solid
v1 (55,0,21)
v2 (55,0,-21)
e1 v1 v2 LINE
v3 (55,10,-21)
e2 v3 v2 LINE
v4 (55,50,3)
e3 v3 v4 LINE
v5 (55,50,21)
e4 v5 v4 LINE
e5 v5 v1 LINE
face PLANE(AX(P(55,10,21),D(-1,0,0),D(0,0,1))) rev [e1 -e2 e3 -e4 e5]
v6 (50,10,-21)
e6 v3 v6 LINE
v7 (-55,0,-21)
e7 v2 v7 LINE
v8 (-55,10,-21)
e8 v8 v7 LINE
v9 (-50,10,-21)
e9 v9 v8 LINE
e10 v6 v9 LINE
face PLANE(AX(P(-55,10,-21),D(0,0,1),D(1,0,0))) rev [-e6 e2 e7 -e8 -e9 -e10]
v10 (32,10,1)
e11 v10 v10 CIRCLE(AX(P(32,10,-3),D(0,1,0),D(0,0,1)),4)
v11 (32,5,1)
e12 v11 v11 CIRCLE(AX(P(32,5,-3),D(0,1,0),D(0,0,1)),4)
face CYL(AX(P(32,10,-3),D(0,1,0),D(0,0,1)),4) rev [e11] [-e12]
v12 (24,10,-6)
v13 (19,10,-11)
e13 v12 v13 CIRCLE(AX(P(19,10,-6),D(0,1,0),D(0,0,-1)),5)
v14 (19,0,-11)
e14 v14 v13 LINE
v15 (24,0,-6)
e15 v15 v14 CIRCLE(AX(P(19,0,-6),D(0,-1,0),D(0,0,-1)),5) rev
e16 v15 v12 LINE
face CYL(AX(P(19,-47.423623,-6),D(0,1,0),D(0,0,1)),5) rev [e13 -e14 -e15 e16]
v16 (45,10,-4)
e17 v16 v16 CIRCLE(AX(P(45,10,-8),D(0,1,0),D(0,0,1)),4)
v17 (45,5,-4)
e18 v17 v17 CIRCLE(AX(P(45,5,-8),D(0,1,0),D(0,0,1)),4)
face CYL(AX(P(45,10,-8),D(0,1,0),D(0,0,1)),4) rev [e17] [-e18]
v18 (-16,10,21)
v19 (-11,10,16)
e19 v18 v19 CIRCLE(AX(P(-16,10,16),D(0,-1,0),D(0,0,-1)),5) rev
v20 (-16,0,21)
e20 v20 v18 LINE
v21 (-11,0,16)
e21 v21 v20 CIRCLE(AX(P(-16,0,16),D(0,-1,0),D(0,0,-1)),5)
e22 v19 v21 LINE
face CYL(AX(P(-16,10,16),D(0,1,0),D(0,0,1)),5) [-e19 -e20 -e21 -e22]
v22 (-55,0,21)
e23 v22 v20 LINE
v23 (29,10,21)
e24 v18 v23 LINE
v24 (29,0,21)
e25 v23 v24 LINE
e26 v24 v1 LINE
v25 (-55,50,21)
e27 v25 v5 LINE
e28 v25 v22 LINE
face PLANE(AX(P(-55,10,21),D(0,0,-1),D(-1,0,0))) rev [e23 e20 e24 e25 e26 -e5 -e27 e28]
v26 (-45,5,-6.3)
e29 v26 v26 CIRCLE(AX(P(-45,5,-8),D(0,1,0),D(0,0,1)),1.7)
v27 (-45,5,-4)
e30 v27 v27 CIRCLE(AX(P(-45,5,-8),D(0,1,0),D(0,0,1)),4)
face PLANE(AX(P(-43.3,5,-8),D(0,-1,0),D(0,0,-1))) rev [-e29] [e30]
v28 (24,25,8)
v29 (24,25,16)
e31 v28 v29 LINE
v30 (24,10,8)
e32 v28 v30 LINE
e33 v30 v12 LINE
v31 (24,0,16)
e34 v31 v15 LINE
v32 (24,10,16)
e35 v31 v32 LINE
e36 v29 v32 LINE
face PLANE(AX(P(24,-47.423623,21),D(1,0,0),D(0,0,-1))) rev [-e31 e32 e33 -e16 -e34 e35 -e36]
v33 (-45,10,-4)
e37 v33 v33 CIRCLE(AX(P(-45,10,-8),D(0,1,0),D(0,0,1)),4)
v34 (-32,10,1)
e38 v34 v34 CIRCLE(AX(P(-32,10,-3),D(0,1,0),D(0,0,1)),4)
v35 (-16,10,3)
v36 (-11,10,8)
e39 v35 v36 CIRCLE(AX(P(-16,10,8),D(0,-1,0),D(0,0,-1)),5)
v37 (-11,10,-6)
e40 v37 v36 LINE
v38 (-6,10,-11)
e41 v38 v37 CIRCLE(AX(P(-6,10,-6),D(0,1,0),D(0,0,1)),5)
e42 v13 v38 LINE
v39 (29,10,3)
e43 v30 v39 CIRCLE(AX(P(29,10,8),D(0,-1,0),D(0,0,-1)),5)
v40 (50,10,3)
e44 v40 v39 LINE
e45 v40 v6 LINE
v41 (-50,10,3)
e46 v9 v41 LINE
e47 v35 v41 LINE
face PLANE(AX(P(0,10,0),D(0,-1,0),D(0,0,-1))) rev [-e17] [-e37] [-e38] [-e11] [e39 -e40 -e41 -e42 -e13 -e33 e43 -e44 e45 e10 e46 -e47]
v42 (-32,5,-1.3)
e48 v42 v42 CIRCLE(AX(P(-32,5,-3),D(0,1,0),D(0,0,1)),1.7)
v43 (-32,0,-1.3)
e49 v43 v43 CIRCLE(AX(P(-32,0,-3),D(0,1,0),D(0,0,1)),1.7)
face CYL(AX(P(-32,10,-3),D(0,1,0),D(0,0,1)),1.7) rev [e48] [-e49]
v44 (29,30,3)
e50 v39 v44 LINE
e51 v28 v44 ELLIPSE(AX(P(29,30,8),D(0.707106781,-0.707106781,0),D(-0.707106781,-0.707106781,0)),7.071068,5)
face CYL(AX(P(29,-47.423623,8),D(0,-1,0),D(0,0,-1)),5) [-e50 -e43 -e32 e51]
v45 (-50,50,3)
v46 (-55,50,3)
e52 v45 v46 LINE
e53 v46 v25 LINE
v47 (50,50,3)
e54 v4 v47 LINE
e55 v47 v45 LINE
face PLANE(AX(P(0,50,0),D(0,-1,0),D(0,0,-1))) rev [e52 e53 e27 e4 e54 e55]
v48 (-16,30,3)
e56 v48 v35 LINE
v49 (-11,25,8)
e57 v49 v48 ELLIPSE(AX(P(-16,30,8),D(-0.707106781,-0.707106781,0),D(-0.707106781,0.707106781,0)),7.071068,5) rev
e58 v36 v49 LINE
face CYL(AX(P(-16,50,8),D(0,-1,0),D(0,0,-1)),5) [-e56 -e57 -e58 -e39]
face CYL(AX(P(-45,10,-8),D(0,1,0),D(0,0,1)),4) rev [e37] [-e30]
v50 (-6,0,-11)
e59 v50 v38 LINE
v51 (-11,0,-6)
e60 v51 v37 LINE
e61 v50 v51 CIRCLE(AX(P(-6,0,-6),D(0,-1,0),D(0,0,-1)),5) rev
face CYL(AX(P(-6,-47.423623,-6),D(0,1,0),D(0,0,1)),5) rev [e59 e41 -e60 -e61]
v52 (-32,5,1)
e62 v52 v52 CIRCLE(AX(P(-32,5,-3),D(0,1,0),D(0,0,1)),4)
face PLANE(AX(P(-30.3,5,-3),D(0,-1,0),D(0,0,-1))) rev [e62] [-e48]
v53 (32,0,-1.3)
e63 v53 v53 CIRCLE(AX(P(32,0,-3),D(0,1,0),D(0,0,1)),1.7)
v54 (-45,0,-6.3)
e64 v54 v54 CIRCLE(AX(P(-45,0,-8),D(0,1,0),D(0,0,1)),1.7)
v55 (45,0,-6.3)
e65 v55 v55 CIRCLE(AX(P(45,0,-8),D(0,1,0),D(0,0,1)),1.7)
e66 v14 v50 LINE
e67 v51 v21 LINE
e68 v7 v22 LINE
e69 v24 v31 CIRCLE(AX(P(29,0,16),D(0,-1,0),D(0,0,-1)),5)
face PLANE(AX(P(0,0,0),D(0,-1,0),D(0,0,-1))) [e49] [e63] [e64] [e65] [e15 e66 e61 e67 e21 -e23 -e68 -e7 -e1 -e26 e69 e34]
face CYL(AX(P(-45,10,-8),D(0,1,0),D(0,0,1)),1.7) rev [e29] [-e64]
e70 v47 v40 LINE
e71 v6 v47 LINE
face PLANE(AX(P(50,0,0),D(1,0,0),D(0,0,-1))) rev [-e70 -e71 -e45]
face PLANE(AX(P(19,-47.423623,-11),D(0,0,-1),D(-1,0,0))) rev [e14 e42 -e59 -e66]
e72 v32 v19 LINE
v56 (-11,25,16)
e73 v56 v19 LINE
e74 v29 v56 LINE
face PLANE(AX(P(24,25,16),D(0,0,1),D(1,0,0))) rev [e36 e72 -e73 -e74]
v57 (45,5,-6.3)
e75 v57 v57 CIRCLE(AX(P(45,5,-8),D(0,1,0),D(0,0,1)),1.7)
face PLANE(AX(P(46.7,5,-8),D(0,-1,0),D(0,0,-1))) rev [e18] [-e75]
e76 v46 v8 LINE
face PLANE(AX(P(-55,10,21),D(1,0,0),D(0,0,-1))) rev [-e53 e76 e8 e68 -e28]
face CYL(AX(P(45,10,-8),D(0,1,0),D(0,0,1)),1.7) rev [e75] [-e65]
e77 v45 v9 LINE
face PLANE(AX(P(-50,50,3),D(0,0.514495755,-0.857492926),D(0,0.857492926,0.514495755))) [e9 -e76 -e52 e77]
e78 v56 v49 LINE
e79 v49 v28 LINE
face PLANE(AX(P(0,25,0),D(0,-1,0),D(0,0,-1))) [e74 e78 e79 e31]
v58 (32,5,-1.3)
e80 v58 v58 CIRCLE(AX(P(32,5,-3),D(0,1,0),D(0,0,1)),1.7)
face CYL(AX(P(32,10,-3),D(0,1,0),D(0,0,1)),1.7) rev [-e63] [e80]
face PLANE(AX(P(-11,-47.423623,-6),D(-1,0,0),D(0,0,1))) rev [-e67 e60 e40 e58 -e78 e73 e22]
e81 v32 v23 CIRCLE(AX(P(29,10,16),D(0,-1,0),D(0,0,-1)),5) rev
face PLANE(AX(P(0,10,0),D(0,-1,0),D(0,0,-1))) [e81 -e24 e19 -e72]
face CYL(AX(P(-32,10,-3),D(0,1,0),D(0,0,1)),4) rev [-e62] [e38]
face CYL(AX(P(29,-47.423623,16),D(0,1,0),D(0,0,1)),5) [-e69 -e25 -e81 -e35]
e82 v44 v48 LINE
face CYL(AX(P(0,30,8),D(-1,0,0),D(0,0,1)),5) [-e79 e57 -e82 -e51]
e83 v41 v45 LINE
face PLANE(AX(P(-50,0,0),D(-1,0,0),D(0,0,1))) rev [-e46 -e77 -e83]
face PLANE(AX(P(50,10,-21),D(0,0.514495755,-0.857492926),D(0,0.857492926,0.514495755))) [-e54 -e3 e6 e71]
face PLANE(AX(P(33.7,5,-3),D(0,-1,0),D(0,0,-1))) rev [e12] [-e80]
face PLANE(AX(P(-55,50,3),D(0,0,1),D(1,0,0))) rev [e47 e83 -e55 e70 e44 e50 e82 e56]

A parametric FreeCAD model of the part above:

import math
import FreeCAD as App
import Part
import Sketcher

V = App.Vector
Q = App.Units.Quantity


def edges_at(feature, points):
    """Names of the edges that pass closest to the given points."""
    edges = feature.Shape.Edges
    near = lambda p: min(range(len(edges)), key=lambda i: edges[i].distToShape(Part.Vertex(*p))[0])
    return sorted({f"Edge{near(p) + 1}" for p in points})

doc = App.newDocument("Part")
params = doc.addObject("Spreadsheet::Sheet", "Params")
for row, (alias, value) in enumerate([
    ("sketch1_width", "110 mm"),
    ("sketch1_height", "42 mm"),
    ("pad1_length", "10 mm"),
    ("sketch2_diameter", "3.4 mm"),
    ("hole_diameter", "3.4 mm"),
    ("hole_cbore_diameter", "8 mm"),
    ("hole_cbore_depth", "5 mm"),
    ("sketch3_radius", "5 mm"),
    ("sketch3_width", "25 mm"),
    ("sketch3_height", "27 mm"),
    ("pocket1_length", "10 mm"),
    ("fillet_radius", "5 mm"),
    ("sketch4_width", "110 mm"),
    ("sketch4_height", "18 mm"),
    ("pad2_length", "40 mm"),
    ("sketch5_width", "40 mm"),
    ("sketch5_height", "24 mm"),
    ("pad3_length", "5 mm"),
    ("sketch6_width", "40 mm"),
    ("sketch6_height", "24 mm"),
    ("pad4_length", "5 mm"),
    ("sketch7_width", "35 mm"),
    ("sketch7_height", "13 mm"),
    ("pocket2_length", "15 mm"),
    ("fillet2_radius", "5 mm"),
], start=1):
    params.set(f"A{row}", alias)
    params.set(f"B{row}", "=" + value)
    params.setAlias(f"B{row}", alias)

body = doc.addObject("PartDesign::Body", "Body")

sketch1 = doc.addObject("Sketcher::SketchObject", "Sketch")
body.addObject(sketch1)
sketch1.AttachmentSupport = (doc.XZ_Plane, [""])
sketch1.MapMode = "FlatFace"
sketch1.addGeometry([
    Part.LineSegment(V(-55, -21, 0), V(-55, 21, 0)),
    Part.LineSegment(V(-55, 21, 0), V(55, 21, 0)),
    Part.LineSegment(V(55, 21, 0), V(55, -21, 0)),
    Part.LineSegment(V(55, -21, 0), V(-55, -21, 0)),
], False)
sketch1.addConstraint([
    Sketcher.Constraint("Coincident", 0, 2, 1, 1),
    Sketcher.Constraint("Coincident", 1, 2, 2, 1),
    Sketcher.Constraint("Coincident", 2, 2, 3, 1),
    Sketcher.Constraint("Coincident", 3, 2, 0, 1),
    Sketcher.Constraint("Vertical", 0),
    Sketcher.Constraint("Horizontal", 1),
    Sketcher.Constraint("Vertical", 2),
    Sketcher.Constraint("Horizontal", 3),
    Sketcher.Constraint("Symmetric", 0, 2, 2, 2, -1, 1),
    Sketcher.Constraint("DistanceX", 1, 1, 1, 2, Q("110 mm")),
    Sketcher.Constraint("DistanceY", 0, 1, 0, 2, Q("42 mm")),
])
sketch1.setExpression("Constraints[9]", "Params.sketch1_width")
sketch1.setExpression("Constraints[10]", "Params.sketch1_height")
pad1 = doc.addObject("PartDesign::Pad", "Pad")
body.addObject(pad1)
pad1.Profile = sketch1
pad1.setExpression("Length", "Params.pad1_length")
pad1.Reversed = True

sketch2 = doc.addObject("Sketcher::SketchObject", "Sketch001")
body.addObject(sketch2)
sketch2.AttachmentSupport = (doc.XZ_Plane, [""])
sketch2.MapMode = "FlatFace"
sketch2.AttachmentOffset = App.Placement(V(0, 0, -10), App.Rotation())
sketch2.addGeometry([
    Part.Circle(V(-45, -8, 0), V(0, 0, 1), 1.7),
    Part.Circle(V(-32, -3, 0), V(0, 0, 1), 1.7),
    Part.Circle(V(32, -3, 0), V(0, 0, 1), 1.7),
    Part.Circle(V(45, -8, 0), V(0, 0, 1), 1.7),
], False)
sketch2.addConstraint([
    Sketcher.Constraint("Equal", 0, 1),
    Sketcher.Constraint("Equal", 1, 2),
    Sketcher.Constraint("Equal", 2, 3),
    Sketcher.Constraint("Symmetric", 1, 3, 2, 3, -2),
    Sketcher.Constraint("Symmetric", 0, 3, 3, 3, -2),
    Sketcher.Constraint("Diameter", 0, Q("3.4 mm")),
    Sketcher.Constraint("DistanceX", 0, 3, -1, 1, Q("45 mm")),
    Sketcher.Constraint("DistanceY", 0, 3, -1, 1, Q("8 mm")),
    Sketcher.Constraint("DistanceX", 1, 3, -1, 1, Q("32 mm")),
    Sketcher.Constraint("DistanceY", 1, 3, -1, 1, Q("3 mm")),
])
sketch2.setExpression("Constraints[5]", "Params.sketch2_diameter")
doc.recompute()
hole = doc.addObject("PartDesign::Hole", "Hole")
body.addObject(hole)
hole.Profile = sketch2
hole.ThreadType = "None"
hole.setExpression("Diameter", "Params.hole_diameter")
hole.DepthType = "ThroughAll"
hole.HoleCutType = "Counterbore"
hole.setExpression("HoleCutDiameter", "Params.hole_cbore_diameter")
hole.setExpression("HoleCutDepth", "Params.hole_cbore_depth")
hole.Reversed = True

sketch3 = doc.addObject("Sketcher::SketchObject", "Sketch002")
body.addObject(sketch3)
sketch3.AttachmentSupport = (doc.XZ_Plane, [""])
sketch3.MapMode = "FlatFace"
sketch3.AttachmentOffset = App.Placement(V(0, 0, -10), App.Rotation())
sketch3.addGeometry([
    Part.LineSegment(V(24, 21, 0), V(24, -6, 0)),
    Part.ArcOfCircle(Part.Circle(V(19, -6, 0), V(0, 0, 1), 5), math.radians(-90), math.radians(0)),
    Part.LineSegment(V(19, -11, 0), V(-6, -11, 0)),
    Part.ArcOfCircle(Part.Circle(V(-6, -6, 0), V(0, 0, 1), 5), math.radians(180), math.radians(270)),
    Part.LineSegment(V(-11, -6, 0), V(-11, 21, 0)),
    Part.LineSegment(V(-11, 21, 0), V(24, 21, 0)),
], False)
sketch3.addConstraint([
    Sketcher.Constraint("Tangent", 0, 2, 1, 2),
    Sketcher.Constraint("Tangent", 1, 1, 2, 1),
    Sketcher.Constraint("Tangent", 2, 2, 3, 2),
    Sketcher.Constraint("Tangent", 3, 1, 4, 1),
    Sketcher.Constraint("Coincident", 4, 2, 5, 1),
    Sketcher.Constraint("Coincident", 5, 2, 0, 1),
    Sketcher.Constraint("Vertical", 0),
    Sketcher.Constraint("Horizontal", 2),
    Sketcher.Constraint("Vertical", 4),
    Sketcher.Constraint("Horizontal", 5),
    Sketcher.Constraint("Equal", 1, 3),
    Sketcher.Constraint("Radius", 1, Q("5 mm")),
    Sketcher.Constraint("DistanceX", 2, 2, 2, 1, Q("25 mm")),
    Sketcher.Constraint("DistanceY", 0, 2, 0, 1, Q("27 mm")),
    Sketcher.Constraint("DistanceX", -1, 1, 1, 3, Q("19 mm")),
    Sketcher.Constraint("DistanceY", 1, 3, -1, 1, Q("6 mm")),
])
sketch3.setExpression("Constraints[11]", "Params.sketch3_radius")
sketch3.setExpression("Constraints[12]", "Params.sketch3_width")
sketch3.setExpression("Constraints[13]", "Params.sketch3_height")
pocket1 = doc.addObject("PartDesign::Pocket", "Pocket")
body.addObject(pocket1)
pocket1.Profile = sketch3
pocket1.setExpression("Length", "Params.pocket1_length")
pocket1.Reversed = True
doc.recompute()

fillet = doc.addObject("PartDesign::Fillet", "Fillet")
body.addObject(fillet)
fillet.Base = (pocket1, edges_at(pocket1, [(-11, 5, 21), (24, 5, 21)]))
fillet.setExpression("Radius", "Params.fillet_radius")

sketch4 = doc.addObject("Sketcher::SketchObject", "Sketch003")
body.addObject(sketch4)
sketch4.AttachmentSupport = (doc.XZ_Plane, [""])
sketch4.MapMode = "FlatFace"
sketch4.AttachmentOffset = App.Placement(V(0, 0, -10), App.Rotation())
sketch4.addGeometry([
    Part.LineSegment(V(-55, 3, 0), V(-55, 21, 0)),
    Part.LineSegment(V(-55, 21, 0), V(55, 21, 0)),
    Part.LineSegment(V(55, 21, 0), V(55, 3, 0)),
    Part.LineSegment(V(55, 3, 0), V(-55, 3, 0)),
], False)
sketch4.addConstraint([
    Sketcher.Constraint("Coincident", 0, 2, 1, 1),
    Sketcher.Constraint("Coincident", 1, 2, 2, 1),
    Sketcher.Constraint("Coincident", 2, 2, 3, 1),
    Sketcher.Constraint("Coincident", 3, 2, 0, 1),
    Sketcher.Constraint("Vertical", 0),
    Sketcher.Constraint("Horizontal", 1),
    Sketcher.Constraint("Vertical", 2),
    Sketcher.Constraint("Horizontal", 3),
    Sketcher.Constraint("DistanceX", 1, 1, 1, 2, Q("110 mm")),
    Sketcher.Constraint("DistanceY", 0, 1, 0, 2, Q("18 mm")),
    Sketcher.Constraint("DistanceX", 0, 2, -1, 1, Q("55 mm")),
    Sketcher.Constraint("DistanceY", -1, 1, 0, 2, Q("21 mm")),
])
sketch4.setExpression("Constraints[8]", "Params.sketch4_width")
sketch4.setExpression("Constraints[9]", "Params.sketch4_height")
pad2 = doc.addObject("PartDesign::Pad", "Pad001")
body.addObject(pad2)
pad2.Profile = sketch4
pad2.setExpression("Length", "Params.pad2_length")
pad2.Reversed = True

sketch5 = doc.addObject("Sketcher::SketchObject", "Sketch004")
body.addObject(sketch5)
sketch5.AttachmentSupport = (doc.YZ_Plane, [""])
sketch5.MapMode = "FlatFace"
sketch5.AttachmentOffset = App.Placement(V(0, 0, -55), App.Rotation())
sketch5.addGeometry([
    Part.LineSegment(V(10, -21, 0), V(10, 3, 0)),
    Part.LineSegment(V(10, 3, 0), V(50, 3, 0)),
    Part.LineSegment(V(50, 3, 0), V(10, -21, 0)),
], False)
sketch5.addConstraint([
    Sketcher.Constraint("Coincident", 0, 2, 1, 1),
    Sketcher.Constraint("Coincident", 1, 2, 2, 1),
    Sketcher.Constraint("Coincident", 2, 2, 0, 1),
    Sketcher.Constraint("Vertical", 0),
    Sketcher.Constraint("Horizontal", 1),
    Sketcher.Constraint("DistanceX", 1, 1, 1, 2, Q("40 mm")),
    Sketcher.Constraint("DistanceY", 0, 1, 0, 2, Q("24 mm")),
    Sketcher.Constraint("DistanceX", -1, 1, 0, 2, Q("10 mm")),
    Sketcher.Constraint("DistanceY", -1, 1, 0, 2, Q("3 mm")),
])
sketch5.setExpression("Constraints[5]", "Params.sketch5_width")
sketch5.setExpression("Constraints[6]", "Params.sketch5_height")
pad3 = doc.addObject("PartDesign::Pad", "Pad002")
body.addObject(pad3)
pad3.Profile = sketch5
pad3.setExpression("Length", "Params.pad3_length")

sketch6 = doc.addObject("Sketcher::SketchObject", "Sketch005")
body.addObject(sketch6)
sketch6.AttachmentSupport = (doc.YZ_Plane, [""])
sketch6.MapMode = "FlatFace"
sketch6.AttachmentOffset = App.Placement(V(0, 0, 55), App.Rotation())
sketch6.addGeometry([
    Part.LineSegment(V(10, 3, 0), V(10, -21, 0)),
    Part.LineSegment(V(10, -21, 0), V(50, 3, 0)),
    Part.LineSegment(V(50, 3, 0), V(10, 3, 0)),
], False)
sketch6.addConstraint([
    Sketcher.Constraint("Coincident", 0, 2, 1, 1),
    Sketcher.Constraint("Coincident", 1, 2, 2, 1),
    Sketcher.Constraint("Coincident", 2, 2, 0, 1),
    Sketcher.Constraint("Vertical", 0),
    Sketcher.Constraint("Horizontal", 2),
    Sketcher.Constraint("DistanceX", 2, 2, 2, 1, Q("40 mm")),
    Sketcher.Constraint("DistanceY", 0, 2, 0, 1, Q("24 mm")),
    Sketcher.Constraint("DistanceX", -1, 1, 0, 2, Q("10 mm")),
    Sketcher.Constraint("DistanceY", 0, 2, -1, 1, Q("21 mm")),
])
sketch6.setExpression("Constraints[5]", "Params.sketch6_width")
sketch6.setExpression("Constraints[6]", "Params.sketch6_height")
pad4 = doc.addObject("PartDesign::Pad", "Pad003")
body.addObject(pad4)
pad4.Profile = sketch6
pad4.setExpression("Length", "Params.pad4_length")
pad4.Reversed = True

sketch7 = doc.addObject("Sketcher::SketchObject", "Sketch006")
body.addObject(sketch7)
sketch7.AttachmentSupport = (doc.XZ_Plane, [""])
sketch7.MapMode = "FlatFace"
sketch7.AttachmentOffset = App.Placement(V(0, 0, -10), App.Rotation())
sketch7.addGeometry([
    Part.LineSegment(V(-11, 16, 0), V(-11, 3, 0)),
    Part.LineSegment(V(-11, 3, 0), V(24, 3, 0)),
    Part.LineSegment(V(24, 3, 0), V(24, 16, 0)),
    Part.LineSegment(V(24, 16, 0), V(-11, 16, 0)),
], False)
sketch7.addConstraint([
    Sketcher.Constraint("Coincident", 0, 2, 1, 1),
    Sketcher.Constraint("Coincident", 1, 2, 2, 1),
    Sketcher.Constraint("Coincident", 2, 2, 3, 1),
    Sketcher.Constraint("Coincident", 3, 2, 0, 1),
    Sketcher.Constraint("Vertical", 0),
    Sketcher.Constraint("Horizontal", 1),
    Sketcher.Constraint("Vertical", 2),
    Sketcher.Constraint("Horizontal", 3),
    Sketcher.Constraint("DistanceX", 1, 1, 1, 2, Q("35 mm")),
    Sketcher.Constraint("DistanceY", 0, 2, 0, 1, Q("13 mm")),
    Sketcher.Constraint("DistanceX", 0, 2, -1, 1, Q("11 mm")),
    Sketcher.Constraint("DistanceY", -1, 1, 0, 2, Q("3 mm")),
])
sketch7.setExpression("Constraints[8]", "Params.sketch7_width")
sketch7.setExpression("Constraints[9]", "Params.sketch7_height")
pocket2 = doc.addObject("PartDesign::Pocket", "Pocket001")
body.addObject(pocket2)
pocket2.Profile = sketch7
pocket2.setExpression("Length", "Params.pocket2_length")
doc.recompute()

fillet2 = doc.addObject("PartDesign::Fillet", "Fillet001")
body.addObject(fillet2)
fillet2.Base = (pocket2, edges_at(pocket2, [(24, 17.5, 3), (6.5, 25, 3), (-11, 17.5, 3)]))
fillet2.setExpression("Radius", "Params.fillet2_radius")

doc.recompute()
